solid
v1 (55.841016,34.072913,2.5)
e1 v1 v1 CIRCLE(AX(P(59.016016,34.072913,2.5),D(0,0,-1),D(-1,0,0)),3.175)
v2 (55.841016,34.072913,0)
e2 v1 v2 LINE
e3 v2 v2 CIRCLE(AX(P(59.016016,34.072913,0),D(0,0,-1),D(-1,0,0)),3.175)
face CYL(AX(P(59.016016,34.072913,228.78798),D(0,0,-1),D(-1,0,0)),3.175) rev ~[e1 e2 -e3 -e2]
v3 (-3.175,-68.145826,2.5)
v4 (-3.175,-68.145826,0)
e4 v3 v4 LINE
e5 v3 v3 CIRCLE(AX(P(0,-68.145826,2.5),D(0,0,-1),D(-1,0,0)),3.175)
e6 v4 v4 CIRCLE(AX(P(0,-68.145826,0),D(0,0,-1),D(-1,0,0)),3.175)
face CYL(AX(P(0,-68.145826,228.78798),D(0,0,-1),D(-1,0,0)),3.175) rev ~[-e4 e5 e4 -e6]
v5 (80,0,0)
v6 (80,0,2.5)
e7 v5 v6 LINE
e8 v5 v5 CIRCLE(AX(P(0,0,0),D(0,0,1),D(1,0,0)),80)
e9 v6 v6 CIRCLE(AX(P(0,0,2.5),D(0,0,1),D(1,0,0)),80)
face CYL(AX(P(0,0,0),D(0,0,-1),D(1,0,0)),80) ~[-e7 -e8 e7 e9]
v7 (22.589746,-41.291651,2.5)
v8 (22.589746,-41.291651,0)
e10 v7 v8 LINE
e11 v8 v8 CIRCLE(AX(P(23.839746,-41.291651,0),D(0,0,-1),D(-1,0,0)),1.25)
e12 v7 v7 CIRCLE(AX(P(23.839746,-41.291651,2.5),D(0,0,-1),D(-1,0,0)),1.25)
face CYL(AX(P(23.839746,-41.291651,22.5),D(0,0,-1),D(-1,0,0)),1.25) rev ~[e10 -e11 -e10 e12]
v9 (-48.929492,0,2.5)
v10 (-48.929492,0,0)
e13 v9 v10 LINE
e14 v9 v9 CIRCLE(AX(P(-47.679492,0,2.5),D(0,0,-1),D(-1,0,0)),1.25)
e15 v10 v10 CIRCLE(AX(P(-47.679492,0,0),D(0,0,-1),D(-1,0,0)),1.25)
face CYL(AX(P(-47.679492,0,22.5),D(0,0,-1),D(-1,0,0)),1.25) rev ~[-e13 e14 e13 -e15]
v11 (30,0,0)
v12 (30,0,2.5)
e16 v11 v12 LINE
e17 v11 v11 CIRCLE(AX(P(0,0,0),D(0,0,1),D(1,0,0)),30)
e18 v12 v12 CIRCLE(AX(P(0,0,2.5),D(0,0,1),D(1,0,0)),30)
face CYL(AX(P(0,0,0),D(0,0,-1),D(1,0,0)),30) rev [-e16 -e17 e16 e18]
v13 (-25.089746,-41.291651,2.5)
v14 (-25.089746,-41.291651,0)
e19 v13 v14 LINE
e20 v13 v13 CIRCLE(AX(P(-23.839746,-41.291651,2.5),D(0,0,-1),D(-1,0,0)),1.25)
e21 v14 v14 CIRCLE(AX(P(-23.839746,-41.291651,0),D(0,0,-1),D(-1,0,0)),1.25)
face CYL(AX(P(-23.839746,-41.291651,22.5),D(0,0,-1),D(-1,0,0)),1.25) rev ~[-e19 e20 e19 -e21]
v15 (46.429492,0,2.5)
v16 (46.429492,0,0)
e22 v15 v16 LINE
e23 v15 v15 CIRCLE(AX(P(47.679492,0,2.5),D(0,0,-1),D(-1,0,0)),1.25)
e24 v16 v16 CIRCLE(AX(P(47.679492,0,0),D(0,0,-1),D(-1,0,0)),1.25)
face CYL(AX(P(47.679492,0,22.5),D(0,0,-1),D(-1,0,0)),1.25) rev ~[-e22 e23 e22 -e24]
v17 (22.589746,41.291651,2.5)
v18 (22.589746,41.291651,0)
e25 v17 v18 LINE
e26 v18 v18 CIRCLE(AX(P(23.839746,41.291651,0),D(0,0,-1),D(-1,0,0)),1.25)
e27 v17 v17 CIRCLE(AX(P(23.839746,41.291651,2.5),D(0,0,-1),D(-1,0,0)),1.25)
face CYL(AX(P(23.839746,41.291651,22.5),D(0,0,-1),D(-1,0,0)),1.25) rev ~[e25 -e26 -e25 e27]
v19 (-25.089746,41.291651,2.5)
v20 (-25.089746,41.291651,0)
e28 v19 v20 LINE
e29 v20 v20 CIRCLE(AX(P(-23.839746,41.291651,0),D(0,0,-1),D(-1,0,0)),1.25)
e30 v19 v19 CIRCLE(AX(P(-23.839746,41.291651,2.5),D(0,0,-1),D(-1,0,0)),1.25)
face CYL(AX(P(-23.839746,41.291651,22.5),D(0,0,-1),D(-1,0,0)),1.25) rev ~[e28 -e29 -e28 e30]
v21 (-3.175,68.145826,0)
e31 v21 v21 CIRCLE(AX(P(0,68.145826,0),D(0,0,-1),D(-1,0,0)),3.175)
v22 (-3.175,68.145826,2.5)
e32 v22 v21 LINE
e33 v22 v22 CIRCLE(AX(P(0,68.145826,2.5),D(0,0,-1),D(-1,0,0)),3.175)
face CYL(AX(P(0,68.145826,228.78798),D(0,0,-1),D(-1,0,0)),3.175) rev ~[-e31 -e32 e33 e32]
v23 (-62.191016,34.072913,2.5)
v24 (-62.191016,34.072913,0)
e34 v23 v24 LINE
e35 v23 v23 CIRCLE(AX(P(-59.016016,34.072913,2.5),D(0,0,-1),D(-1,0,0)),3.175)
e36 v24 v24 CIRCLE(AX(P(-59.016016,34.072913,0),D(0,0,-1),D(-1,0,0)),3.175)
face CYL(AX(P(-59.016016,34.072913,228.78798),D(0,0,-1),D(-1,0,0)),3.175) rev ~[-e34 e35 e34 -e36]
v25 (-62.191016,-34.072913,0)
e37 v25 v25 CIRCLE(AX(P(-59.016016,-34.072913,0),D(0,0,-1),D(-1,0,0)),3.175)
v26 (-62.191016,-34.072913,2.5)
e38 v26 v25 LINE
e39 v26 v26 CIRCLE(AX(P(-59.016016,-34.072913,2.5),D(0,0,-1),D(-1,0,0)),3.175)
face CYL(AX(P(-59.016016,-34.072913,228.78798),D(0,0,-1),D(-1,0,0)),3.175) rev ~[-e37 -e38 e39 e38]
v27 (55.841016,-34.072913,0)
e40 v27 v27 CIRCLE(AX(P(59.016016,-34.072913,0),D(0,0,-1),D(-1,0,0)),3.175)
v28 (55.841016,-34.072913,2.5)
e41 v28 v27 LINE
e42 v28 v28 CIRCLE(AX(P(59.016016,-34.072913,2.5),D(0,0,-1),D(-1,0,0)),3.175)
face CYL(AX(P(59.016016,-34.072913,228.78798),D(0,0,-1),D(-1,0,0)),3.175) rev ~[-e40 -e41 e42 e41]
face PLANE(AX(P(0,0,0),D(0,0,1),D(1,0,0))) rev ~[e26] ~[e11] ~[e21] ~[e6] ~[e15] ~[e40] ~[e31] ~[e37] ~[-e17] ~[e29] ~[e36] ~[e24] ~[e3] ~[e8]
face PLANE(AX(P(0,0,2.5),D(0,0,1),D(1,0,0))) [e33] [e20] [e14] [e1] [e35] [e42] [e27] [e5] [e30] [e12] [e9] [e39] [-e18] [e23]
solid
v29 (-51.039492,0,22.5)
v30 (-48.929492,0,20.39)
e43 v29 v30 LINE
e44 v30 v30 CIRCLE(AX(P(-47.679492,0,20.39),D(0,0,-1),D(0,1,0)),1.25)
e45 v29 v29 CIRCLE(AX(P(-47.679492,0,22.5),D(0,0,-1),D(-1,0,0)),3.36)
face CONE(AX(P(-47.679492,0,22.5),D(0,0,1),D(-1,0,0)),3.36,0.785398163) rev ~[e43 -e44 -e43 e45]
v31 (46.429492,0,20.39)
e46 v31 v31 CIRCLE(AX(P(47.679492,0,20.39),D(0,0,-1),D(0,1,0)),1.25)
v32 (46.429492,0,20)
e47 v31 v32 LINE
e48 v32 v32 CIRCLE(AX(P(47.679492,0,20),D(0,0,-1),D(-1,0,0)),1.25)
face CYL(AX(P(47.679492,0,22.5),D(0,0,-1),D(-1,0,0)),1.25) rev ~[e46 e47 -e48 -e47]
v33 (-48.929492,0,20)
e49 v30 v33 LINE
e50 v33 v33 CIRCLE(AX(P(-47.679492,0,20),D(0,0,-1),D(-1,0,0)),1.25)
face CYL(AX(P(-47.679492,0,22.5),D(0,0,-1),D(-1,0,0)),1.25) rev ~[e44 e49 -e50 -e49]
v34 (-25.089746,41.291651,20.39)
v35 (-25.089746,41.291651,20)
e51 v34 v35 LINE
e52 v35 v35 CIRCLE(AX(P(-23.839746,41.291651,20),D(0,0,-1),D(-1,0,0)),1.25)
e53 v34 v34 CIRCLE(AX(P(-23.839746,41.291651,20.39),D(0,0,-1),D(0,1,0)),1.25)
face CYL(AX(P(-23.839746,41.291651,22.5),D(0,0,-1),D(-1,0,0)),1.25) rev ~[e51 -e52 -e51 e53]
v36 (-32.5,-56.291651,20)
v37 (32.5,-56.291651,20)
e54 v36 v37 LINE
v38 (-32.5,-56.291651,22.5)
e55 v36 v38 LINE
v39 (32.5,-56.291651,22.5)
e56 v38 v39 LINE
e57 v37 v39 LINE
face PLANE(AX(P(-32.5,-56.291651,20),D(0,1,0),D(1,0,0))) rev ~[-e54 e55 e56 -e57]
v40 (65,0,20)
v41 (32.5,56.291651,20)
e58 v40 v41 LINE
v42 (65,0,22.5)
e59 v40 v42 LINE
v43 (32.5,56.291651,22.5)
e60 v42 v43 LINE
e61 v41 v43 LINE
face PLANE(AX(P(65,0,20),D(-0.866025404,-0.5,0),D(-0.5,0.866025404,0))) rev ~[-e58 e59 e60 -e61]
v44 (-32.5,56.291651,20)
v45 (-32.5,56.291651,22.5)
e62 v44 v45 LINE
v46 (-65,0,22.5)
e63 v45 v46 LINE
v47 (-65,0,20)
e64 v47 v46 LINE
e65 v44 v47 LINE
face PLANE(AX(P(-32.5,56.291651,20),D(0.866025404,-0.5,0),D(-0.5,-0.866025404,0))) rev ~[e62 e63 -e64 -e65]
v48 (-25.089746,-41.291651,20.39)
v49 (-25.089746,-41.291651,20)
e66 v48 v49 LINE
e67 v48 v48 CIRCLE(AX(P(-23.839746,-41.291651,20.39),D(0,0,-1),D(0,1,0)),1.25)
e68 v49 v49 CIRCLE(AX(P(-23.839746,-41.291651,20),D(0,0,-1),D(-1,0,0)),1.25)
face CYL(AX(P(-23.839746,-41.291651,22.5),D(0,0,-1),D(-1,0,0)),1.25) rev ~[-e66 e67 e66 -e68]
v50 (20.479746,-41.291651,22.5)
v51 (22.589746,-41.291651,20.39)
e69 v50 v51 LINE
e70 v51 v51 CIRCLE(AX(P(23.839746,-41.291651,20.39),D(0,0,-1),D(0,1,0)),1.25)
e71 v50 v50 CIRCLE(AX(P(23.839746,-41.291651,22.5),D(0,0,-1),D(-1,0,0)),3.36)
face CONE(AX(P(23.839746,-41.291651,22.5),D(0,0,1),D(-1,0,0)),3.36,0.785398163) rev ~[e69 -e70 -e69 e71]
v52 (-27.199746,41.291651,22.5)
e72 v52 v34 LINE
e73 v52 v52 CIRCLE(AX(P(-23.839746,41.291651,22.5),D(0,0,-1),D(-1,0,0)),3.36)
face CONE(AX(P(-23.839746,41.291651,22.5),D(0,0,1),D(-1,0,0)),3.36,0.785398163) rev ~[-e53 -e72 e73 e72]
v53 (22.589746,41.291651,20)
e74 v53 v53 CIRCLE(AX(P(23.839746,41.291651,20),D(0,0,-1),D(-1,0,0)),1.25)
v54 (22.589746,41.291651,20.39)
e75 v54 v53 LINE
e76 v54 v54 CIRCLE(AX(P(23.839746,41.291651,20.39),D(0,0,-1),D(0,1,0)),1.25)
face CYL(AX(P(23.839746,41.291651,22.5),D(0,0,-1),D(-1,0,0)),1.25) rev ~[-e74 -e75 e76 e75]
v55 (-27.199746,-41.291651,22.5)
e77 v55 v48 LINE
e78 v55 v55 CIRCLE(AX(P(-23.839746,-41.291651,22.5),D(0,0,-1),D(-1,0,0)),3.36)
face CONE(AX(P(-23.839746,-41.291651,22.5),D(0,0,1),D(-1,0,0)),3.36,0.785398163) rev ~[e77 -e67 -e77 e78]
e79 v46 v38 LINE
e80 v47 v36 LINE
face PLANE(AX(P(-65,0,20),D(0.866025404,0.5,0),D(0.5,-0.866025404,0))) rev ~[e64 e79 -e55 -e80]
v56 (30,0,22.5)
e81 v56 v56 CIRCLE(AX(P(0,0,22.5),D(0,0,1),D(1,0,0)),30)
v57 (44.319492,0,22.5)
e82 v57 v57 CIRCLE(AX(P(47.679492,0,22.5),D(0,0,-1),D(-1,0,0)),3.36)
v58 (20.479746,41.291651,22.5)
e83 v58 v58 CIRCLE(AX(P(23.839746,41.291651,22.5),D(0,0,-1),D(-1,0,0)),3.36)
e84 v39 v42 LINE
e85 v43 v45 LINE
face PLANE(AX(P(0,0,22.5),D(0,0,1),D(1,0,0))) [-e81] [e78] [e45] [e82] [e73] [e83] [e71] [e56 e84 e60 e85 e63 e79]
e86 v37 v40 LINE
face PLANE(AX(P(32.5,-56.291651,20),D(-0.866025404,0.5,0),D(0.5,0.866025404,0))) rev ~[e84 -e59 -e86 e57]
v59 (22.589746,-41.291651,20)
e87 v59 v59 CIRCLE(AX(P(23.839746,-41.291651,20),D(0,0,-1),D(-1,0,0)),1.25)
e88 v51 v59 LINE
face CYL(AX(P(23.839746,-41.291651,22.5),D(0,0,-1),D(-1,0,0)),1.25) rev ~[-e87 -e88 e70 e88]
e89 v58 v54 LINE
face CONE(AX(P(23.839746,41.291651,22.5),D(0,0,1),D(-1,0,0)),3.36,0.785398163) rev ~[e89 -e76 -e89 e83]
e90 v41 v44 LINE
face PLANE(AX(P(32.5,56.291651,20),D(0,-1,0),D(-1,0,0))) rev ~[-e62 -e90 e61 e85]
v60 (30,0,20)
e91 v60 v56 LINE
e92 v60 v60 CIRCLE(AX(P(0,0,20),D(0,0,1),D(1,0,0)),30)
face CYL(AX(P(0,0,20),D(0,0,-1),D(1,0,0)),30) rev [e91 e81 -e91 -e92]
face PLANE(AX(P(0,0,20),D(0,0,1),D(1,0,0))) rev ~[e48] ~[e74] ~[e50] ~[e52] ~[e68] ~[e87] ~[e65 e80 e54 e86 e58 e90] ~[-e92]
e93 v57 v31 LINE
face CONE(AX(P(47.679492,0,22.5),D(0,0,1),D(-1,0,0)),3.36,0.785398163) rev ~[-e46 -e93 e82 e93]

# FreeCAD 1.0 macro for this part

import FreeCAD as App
import Part
import Sketcher
from FreeCAD import Vector
Q = App.Units.Quantity


def add_polygon(sketch, points):
    """Adds a closed chain of lines whose ends are joined by coincident constraints."""
    first, n = sketch.GeometryCount, len(points)
    for a, b in zip(points, points[1:] + points[:1]):
        sketch.addGeometry(Part.LineSegment(App.Vector(*a, 0), App.Vector(*b, 0)), False)
    for i in range(n):
        sketch.addConstraint(Sketcher.Constraint("Coincident", first + i, 2, first + (i + 1) % n, 1))

doc = App.newDocument("Part")
body = doc.addObject("PartDesign::Body", "Body")

sketch1 = doc.addObject("Sketcher::SketchObject", "Sketch")
body.addObject(sketch1)
sketch1.AttachmentSupport = (doc.XY_Plane, [""])
sketch1.MapMode = "FlatFace"
sketch1.addGeometry([
    Part.Circle(Vector(0, 0, 0), Vector(0, 0, 1), 80),
    Part.Circle(Vector(0, 0, 0), Vector(0, 0, 1), 30),
], False)
sketch1.addConstraint([
    Sketcher.Constraint("Coincident", 0, 3, -1, 1),
    Sketcher.Constraint("Coincident", 1, 3, -1, 1),
    Sketcher.Constraint("Diameter", 0, 160.0),
    Sketcher.Constraint("Diameter", 1, 60.0),
])
pad1 = doc.addObject("PartDesign::Pad", "Pad")
body.addObject(pad1)
pad1.Profile = sketch1
pad1.Length = 2.5

sketch2 = doc.addObject("Sketcher::SketchObject", "Sketch001")
body.addObject(sketch2)
sketch2.AttachmentSupport = (doc.XY_Plane, [""])
sketch2.MapMode = "FlatFace"
sketch2.AttachmentOffset = App.Placement(Vector(0, 0, 22.5), App.Rotation())
sketch2.addGeometry([
    Part.Circle(Vector(-23.8, 41.3, 0), Vector(0, 0, 1), 1.2),
    Part.Circle(Vector(23.8, 41.3, 0), Vector(0, 0, 1), 1.2),
    Part.Circle(Vector(47.7, 0, 0), Vector(0, 0, 1), 1.2),
    Part.Circle(Vector(23.8, -41.3, 0), Vector(0, 0, 1), 1.2),
    Part.Circle(Vector(-23.8, -41.3, 0), Vector(0, 0, 1), 1.2),
    Part.Circle(Vector(-47.7, 0, 0), Vector(0, 0, 1), 1.2),
], False)
sketch2.addConstraint([
    Sketcher.Constraint("Equal", 0, 1),
    Sketcher.Constraint("Equal", 1, 2),
    Sketcher.Constraint("Equal", 2, 3),
    Sketcher.Constraint("Equal", 3, 4),
    Sketcher.Constraint("Equal", 4, 5),
    Sketcher.Constraint("Symmetric", 0, 3, 3, 3, -1, 1),
    Sketcher.Constraint("Symmetric", 1, 3, 4, 3, -1, 1),
    Sketcher.Constraint("Symmetric", 2, 3, 5, 3, -1, 1),
    Sketcher.Constraint("Symmetric", 0, 3, 1, 3, -2),
    Sketcher.Constraint("PointOnObject", 2, 3, -1),
    Sketcher.Constraint("Diameter", 0, 2.5),
    Sketcher.Constraint("DistanceY", -1, 1, 0, 3, 41.291651),
    Sketcher.Constraint("DistanceX", -1, 1, 2, 3, 47.679492),
    Sketcher.Constraint("DistanceX", 0, 3, 1, 3, 47.679492),
])
doc.recompute()
hole = doc.addObject("PartDesign::Hole", "Hole")
body.addObject(hole)
hole.Profile = sketch2
hole.ThreadType = "None"
hole.Diameter = 2.5
hole.DepthType = "ThroughAll"
hole.HoleCutType = "Countersink"
hole.HoleCutDiameter = 6.72
hole.HoleCutCountersinkAngle = 90

sketch3 = doc.addObject("Sketcher::SketchObject", "Sketch002")
body.addObject(sketch3)
sketch3.AttachmentSupport = (doc.XY_Plane, [""])
sketch3.MapMode = "FlatFace"
sketch3.AttachmentOffset = App.Placement(Vector(0, 0, 2.5), App.Rotation())
sketch3.addGeometry([
    Part.Circle(Vector(0, 68.1, 0), Vector(0, 0, 1), 3.2),
    Part.Circle(Vector(59, 34.1, 0), Vector(0, 0, 1), 3.2),
    Part.Circle(Vector(59, -34.1, 0), Vector(0, 0, 1), 3.2),
    Part.Circle(Vector(0, -68.1, 0), Vector(0, 0, 1), 3.2),
    Part.Circle(Vector(-59, -34.1, 0), Vector(0, 0, 1), 3.2),
    Part.Circle(Vector(-59, 34.1, 0), Vector(0, 0, 1), 3.2),
], False)
sketch3.addConstraint([
    Sketcher.Constraint("Equal", 0, 1),
    Sketcher.Constraint("Equal", 1, 2),
    Sketcher.Constraint("Equal", 2, 3),
    Sketcher.Constraint("Equal", 3, 4),
    Sketcher.Constraint("Equal", 4, 5),
    Sketcher.Constraint("Symmetric", 0, 3, 3, 3, -1, 1),
    Sketcher.Constraint("Symmetric", 1, 3, 4, 3, -1, 1),
    Sketcher.Constraint("Symmetric", 2, 3, 5, 3, -1, 1),
    Sketcher.Constraint("Symmetric", 2, 3, 4, 3, -2),
    Sketcher.Constraint("PointOnObject", 0, 3, -2),
    Sketcher.Constraint("Diameter", 0, 6.35),
    Sketcher.Constraint("DistanceY", 2, 3, 0, 3, 102.218738),
    Sketcher.Constraint("DistanceY", 3, 3, 0, 3, 136.291651),
    Sketcher.Constraint("DistanceX", -1, 1, 1, 3, 59.016016),
])
doc.recompute()
hole2 = doc.addObject("PartDesign::Hole", "Hole001")
body.addObject(hole2)
hole2.Profile = sketch3
hole2.ThreadType = "None"
hole2.Diameter = 6.35
hole2.DepthType = "ThroughAll"
body2 = doc.addObject("PartDesign::Body", "Body001")

sketch4 = doc.addObject("Sketcher::SketchObject", "Sketch003")
body2.addObject(sketch4)
sketch4.AttachmentSupport = (doc.getObject("XY_Plane001"), [""])
sketch4.MapMode = "FlatFace"
sketch4.AttachmentOffset = App.Placement(Vector(0, 0, 20), App.Rotation())
add_polygon(sketch4, [(65, 0), (32, 56), (-32, 56), (-65, 0), (-32, -56), (32, -56)])
sketch4.addGeometry(Part.Circle(Vector(0, 0, 0), Vector(0, 0, 1), 30), False)
sketch4.addConstraint([
    Sketcher.Constraint("Horizontal", 1),
    Sketcher.Constraint("Horizontal", 4),
    Sketcher.Constraint("Coincident", 6, 3, -1, 1),
    Sketcher.Constraint("Symmetric", 0, 2, 3, 2, -1, 1),
    Sketcher.Constraint("Symmetric", 2, 2, 5, 2, -1, 1),
    Sketcher.Constraint("PointOnObject", 2, 2, -1),
    Sketcher.Constraint("Parallel", 2, 5),
    Sketcher.Constraint("Vertical", 1, 2, 3, 2),
    Sketcher.Constraint("Diameter", 6, 60.0),
    Sketcher.Constraint("DistanceX", 1, 2, 1, 1, 65.0),
    Sketcher.Constraint("Angle", 0, Q("120 deg")),
    Sketcher.Constraint("Distance", 0, 65.0),
])
pad2 = doc.addObject("PartDesign::Pad", "Pad001")
body2.addObject(pad2)
pad2.Profile = sketch4
pad2.Length = 2.5

sketch5 = doc.addObject("Sketcher::SketchObject", "Sketch004")
body2.addObject(sketch5)
sketch5.AttachmentSupport = (doc.getObject("XY_Plane001"), [""])
sketch5.MapMode = "FlatFace"
sketch5.AttachmentOffset = App.Placement(Vector(0, 0, 22.5), App.Rotation())
sketch5.addGeometry([
    Part.Circle(Vector(-23.8, 41.3, 0), Vector(0, 0, 1), 1.2),
    Part.Circle(Vector(23.8, 41.3, 0), Vector(0, 0, 1), 1.2),
    Part.Circle(Vector(47.7, 0, 0), Vector(0, 0, 1), 1.2),
    Part.Circle(Vector(23.8, -41.3, 0), Vector(0, 0, 1), 1.2),
    Part.Circle(Vector(-23.8, -41.3, 0), Vector(0, 0, 1), 1.2),
    Part.Circle(Vector(-47.7, 0, 0), Vector(0, 0, 1), 1.2),
], False)
sketch5.addConstraint([
    Sketcher.Constraint("Equal", 0, 1),
    Sketcher.Constraint("Equal", 1, 2),
    Sketcher.Constraint("Equal", 2, 3),
    Sketcher.Constraint("Equal", 3, 4),
    Sketcher.Constraint("Equal", 4, 5),
    Sketcher.Constraint("Symmetric", 0, 3, 3, 3, -1, 1),
    Sketcher.Constraint("Symmetric", 1, 3, 4, 3, -1, 1),
    Sketcher.Constraint("Symmetric", 2, 3, 5, 3, -1, 1),
    Sketcher.Constraint("Symmetric", 0, 3, 1, 3, -2),
    Sketcher.Constraint("PointOnObject", 2, 3, -1),
    Sketcher.Constraint("Diameter", 0, 2.5),
    Sketcher.Constraint("DistanceY", -1, 1, 0, 3, 41.291651),
    Sketcher.Constraint("DistanceX", -1, 1, 2, 3, 47.679492),
    Sketcher.Constraint("DistanceX", 0, 3, 1, 3, 47.679492),
])
doc.recompute()
hole3 = doc.addObject("PartDesign::Hole", "Hole002")
body2.addObject(hole3)
hole3.Profile = sketch5
hole3.ThreadType = "None"
hole3.Diameter = 2.5
hole3.DepthType = "ThroughAll"
hole3.HoleCutType = "Countersink"
hole3.HoleCutDiameter = 6.72
hole3.HoleCutCountersinkAngle = 90

doc.recompute()
